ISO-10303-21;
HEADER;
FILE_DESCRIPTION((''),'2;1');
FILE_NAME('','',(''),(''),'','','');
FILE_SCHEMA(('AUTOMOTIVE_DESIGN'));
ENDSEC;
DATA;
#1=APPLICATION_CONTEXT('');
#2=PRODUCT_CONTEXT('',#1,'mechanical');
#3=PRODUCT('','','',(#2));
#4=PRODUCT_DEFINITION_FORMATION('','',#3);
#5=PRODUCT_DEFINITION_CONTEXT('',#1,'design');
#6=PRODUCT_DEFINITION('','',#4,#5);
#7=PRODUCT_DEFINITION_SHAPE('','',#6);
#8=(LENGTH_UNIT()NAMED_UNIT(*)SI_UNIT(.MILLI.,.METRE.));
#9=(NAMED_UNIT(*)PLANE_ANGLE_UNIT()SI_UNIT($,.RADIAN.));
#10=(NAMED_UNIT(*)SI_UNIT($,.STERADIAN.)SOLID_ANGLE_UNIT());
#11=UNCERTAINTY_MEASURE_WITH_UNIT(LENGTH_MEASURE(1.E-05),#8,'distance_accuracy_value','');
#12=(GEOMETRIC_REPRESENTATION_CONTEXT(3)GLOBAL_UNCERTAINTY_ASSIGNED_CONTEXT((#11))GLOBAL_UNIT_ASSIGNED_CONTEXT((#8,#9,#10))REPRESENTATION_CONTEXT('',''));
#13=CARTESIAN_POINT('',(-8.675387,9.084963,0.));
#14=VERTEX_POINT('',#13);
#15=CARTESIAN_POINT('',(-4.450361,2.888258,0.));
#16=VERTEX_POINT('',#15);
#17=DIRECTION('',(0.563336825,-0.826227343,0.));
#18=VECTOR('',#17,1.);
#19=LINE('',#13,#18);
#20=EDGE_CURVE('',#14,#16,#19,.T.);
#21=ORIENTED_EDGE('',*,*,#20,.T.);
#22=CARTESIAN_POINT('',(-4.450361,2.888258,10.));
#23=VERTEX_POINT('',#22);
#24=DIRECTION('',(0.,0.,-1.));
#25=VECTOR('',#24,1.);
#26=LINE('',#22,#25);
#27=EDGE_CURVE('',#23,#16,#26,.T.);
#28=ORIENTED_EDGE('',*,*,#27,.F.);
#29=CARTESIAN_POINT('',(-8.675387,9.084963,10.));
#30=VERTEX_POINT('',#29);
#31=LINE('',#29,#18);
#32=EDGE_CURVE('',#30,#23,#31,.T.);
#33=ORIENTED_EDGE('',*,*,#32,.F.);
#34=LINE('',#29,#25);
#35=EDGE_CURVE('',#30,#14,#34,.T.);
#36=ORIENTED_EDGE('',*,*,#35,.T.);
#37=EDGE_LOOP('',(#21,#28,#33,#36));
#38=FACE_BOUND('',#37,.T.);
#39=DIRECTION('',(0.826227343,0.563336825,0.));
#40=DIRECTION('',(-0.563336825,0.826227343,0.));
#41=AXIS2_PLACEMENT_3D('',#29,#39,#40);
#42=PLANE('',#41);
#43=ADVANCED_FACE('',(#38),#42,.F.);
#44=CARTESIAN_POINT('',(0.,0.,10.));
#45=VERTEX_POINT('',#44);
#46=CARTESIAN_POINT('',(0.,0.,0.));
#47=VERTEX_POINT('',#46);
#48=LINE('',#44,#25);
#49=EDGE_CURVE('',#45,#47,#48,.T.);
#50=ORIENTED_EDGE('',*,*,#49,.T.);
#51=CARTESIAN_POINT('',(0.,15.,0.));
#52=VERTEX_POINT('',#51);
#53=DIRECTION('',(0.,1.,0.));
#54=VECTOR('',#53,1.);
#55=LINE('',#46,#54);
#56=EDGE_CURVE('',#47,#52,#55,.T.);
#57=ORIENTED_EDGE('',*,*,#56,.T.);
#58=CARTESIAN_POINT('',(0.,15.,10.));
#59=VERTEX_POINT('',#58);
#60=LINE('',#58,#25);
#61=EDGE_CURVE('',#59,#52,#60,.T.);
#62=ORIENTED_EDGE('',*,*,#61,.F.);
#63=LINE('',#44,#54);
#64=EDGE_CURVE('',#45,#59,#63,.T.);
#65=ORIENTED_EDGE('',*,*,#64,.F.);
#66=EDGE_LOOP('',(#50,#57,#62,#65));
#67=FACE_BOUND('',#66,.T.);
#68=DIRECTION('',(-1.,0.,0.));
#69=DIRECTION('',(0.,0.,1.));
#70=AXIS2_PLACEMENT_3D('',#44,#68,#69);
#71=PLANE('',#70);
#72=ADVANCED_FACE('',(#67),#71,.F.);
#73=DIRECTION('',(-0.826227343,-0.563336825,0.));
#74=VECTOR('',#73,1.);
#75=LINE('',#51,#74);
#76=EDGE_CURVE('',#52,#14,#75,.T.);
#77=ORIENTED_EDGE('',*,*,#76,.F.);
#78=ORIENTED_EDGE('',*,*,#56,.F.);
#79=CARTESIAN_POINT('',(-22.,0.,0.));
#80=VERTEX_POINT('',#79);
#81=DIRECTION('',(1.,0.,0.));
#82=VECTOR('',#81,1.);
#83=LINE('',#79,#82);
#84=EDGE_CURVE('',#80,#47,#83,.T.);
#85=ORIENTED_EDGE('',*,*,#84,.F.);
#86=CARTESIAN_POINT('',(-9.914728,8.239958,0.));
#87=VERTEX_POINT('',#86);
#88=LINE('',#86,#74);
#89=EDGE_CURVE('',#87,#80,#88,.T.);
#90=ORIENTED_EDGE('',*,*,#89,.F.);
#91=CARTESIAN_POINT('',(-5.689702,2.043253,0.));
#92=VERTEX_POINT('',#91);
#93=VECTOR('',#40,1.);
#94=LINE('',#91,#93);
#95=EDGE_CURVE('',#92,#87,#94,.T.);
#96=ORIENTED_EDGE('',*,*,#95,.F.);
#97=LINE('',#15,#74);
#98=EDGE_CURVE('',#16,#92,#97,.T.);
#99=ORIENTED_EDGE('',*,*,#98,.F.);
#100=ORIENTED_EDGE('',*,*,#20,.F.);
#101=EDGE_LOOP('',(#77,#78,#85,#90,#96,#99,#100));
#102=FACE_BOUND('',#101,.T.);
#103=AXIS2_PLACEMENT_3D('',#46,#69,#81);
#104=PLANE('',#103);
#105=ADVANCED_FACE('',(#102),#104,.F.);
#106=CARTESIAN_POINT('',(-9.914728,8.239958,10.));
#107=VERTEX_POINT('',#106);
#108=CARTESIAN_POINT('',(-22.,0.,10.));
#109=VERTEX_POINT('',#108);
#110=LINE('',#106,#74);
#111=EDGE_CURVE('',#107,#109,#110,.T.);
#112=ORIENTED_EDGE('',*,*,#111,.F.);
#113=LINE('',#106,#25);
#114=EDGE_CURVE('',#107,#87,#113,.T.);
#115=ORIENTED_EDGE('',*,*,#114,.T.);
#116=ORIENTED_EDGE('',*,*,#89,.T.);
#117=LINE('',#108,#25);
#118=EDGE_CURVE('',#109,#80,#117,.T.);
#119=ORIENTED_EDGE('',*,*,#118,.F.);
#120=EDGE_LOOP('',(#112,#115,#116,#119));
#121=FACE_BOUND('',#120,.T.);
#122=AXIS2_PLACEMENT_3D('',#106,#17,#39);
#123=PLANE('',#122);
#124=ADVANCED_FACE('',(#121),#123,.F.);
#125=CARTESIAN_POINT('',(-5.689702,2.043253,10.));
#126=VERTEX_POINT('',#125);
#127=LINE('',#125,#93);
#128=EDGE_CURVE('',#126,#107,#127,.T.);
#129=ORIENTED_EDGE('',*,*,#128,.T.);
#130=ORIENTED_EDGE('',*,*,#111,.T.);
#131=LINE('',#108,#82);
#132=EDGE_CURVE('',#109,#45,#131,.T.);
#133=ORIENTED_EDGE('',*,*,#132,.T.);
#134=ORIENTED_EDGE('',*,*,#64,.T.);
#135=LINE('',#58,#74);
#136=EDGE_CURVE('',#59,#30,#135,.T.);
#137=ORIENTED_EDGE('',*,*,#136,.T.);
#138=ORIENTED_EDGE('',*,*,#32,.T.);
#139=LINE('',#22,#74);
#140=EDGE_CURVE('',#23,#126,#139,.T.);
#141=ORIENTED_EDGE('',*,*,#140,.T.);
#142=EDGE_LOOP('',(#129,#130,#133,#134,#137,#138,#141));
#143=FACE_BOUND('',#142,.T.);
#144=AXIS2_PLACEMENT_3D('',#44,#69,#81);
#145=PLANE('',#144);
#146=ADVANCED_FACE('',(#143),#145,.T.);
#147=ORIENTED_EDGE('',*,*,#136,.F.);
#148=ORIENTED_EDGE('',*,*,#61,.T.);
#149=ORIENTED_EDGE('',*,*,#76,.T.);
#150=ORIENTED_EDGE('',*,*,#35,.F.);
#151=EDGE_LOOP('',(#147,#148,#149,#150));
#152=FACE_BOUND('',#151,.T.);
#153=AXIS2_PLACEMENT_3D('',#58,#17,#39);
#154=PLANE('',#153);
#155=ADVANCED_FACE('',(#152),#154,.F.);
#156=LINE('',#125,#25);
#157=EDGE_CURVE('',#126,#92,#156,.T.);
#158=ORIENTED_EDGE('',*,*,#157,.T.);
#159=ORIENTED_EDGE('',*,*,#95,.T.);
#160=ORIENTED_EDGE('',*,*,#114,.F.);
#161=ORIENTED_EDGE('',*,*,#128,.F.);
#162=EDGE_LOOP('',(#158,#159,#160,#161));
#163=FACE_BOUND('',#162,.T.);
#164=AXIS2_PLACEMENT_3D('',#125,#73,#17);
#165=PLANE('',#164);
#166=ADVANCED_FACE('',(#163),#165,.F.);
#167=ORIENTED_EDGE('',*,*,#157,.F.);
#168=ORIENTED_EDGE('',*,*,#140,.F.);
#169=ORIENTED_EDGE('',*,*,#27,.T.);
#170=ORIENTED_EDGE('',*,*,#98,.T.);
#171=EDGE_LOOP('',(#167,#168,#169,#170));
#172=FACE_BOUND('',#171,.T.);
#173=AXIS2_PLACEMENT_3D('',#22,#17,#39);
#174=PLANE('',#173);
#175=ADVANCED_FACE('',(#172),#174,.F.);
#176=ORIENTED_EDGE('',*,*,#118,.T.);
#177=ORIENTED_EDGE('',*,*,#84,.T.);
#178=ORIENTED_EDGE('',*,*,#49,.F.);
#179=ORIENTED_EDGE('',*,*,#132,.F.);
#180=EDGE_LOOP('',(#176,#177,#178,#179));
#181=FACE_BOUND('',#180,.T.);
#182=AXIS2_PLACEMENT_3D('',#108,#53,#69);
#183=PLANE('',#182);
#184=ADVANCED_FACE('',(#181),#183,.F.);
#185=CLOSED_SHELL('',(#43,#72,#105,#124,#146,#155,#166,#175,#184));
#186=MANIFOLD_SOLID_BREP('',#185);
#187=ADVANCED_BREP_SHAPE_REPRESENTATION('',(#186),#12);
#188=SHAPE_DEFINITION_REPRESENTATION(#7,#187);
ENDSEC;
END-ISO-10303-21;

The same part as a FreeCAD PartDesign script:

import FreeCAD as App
import Part
import Sketcher
Q = App.Units.Quantity

doc = App.newDocument("Part")
body = doc.addObject("PartDesign::Body", "Body")

# Sketch on XY plane
sketch1 = doc.addObject("Sketcher::SketchObject", "Sketch")
body.addObject(sketch1)
sketch1.AttachmentSupport = (doc.XY_Plane, [""])
sketch1.MapMode = "FlatFace"
sketch1.addGeometry([
    Part.LineSegment(App.Vector(0, 0, 0), App.Vector(0, 15, 0)),  # 0
    Part.LineSegment(App.Vector(0, 15, 0), App.Vector(-8.675387, 9.084963, 0)),  # 1
    Part.LineSegment(App.Vector(-8.675387, 9.084963, 0), App.Vector(-4.450361, 2.888258, 0)),  # 2
    Part.LineSegment(App.Vector(-4.450361, 2.888258, 0), App.Vector(-5.689702, 2.043253, 0)),  # 3
    Part.LineSegment(App.Vector(-5.689702, 2.043253, 0), App.Vector(-9.914728, 8.239958, 0)),  # 4
    Part.LineSegment(App.Vector(-9.914728, 8.239958, 0), App.Vector(-22, 0, 0)),  # 5
    Part.LineSegment(App.Vector(-22, 0, 0), App.Vector(0, 0, 0)),  # 6
], False)
sketch1.addConstraint([
    Sketcher.Constraint("Coincident", 0, 2, 1, 1),
    Sketcher.Constraint("Coincident", 1, 2, 2, 1),
    Sketcher.Constraint("Coincident", 2, 2, 3, 1),
    Sketcher.Constraint("Coincident", 3, 2, 4, 1),
    Sketcher.Constraint("Coincident", 4, 2, 5, 1),
    Sketcher.Constraint("Coincident", 5, 2, 6, 1),
    Sketcher.Constraint("Coincident", 6, 2, 0, 1),
    Sketcher.Constraint("Vertical", 0),
    Sketcher.Constraint("Horizontal", 6),
    Sketcher.Constraint("Coincident", 6, 2, -1, 1),
    Sketcher.Constraint("Perpendicular", 1, 2),
    Sketcher.Constraint("Perpendicular", 2, 3),
    Sketcher.Constraint("Perpendicular", 3, 4),
    Sketcher.Constraint("Perpendicular", 4, 5),
    Sketcher.Constraint("Equal", 2, 4),
    Sketcher.Constraint("DistanceX", 6, 1, 6, 2, Q("22 mm")),
    Sketcher.Constraint("DistanceY", 0, 1, 0, 2, Q("15 mm")),
    Sketcher.Constraint("Distance", 1, Q("10.5 mm")),
    Sketcher.Constraint("Distance", 2, Q("7.5 mm")),
    Sketcher.Constraint("Distance", 3, Q("1.5 mm")),
])
pad1 = doc.addObject("PartDesign::Pad", "Pad")
body.addObject(pad1)
pad1.Profile = sketch1
pad1.Length = 10

doc.recompute()
